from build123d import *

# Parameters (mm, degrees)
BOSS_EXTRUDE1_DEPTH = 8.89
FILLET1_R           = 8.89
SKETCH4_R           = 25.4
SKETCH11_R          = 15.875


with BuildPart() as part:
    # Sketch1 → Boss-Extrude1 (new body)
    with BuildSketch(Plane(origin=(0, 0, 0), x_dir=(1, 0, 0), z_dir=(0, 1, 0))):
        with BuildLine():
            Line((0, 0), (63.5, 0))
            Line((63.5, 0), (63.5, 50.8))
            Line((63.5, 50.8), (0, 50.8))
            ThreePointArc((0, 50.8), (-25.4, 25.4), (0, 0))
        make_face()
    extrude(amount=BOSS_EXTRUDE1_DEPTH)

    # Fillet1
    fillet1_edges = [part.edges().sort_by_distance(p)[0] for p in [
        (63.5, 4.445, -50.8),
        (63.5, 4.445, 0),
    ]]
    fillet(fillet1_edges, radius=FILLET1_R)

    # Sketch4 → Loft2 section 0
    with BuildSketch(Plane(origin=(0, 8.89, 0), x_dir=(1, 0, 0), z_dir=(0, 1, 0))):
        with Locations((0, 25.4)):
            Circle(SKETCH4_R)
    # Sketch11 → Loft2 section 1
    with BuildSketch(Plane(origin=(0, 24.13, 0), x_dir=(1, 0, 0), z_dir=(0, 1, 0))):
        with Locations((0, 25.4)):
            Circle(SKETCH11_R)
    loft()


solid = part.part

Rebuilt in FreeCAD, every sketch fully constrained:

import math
import FreeCAD as App
import Part
import Sketcher

V = App.Vector
Q = App.Units.Quantity


def edges_at(feature, points):
    """Names of the edges that pass closest to the given points."""
    edges = feature.Shape.Edges
    near = lambda p: min(range(len(edges)), key=lambda i: edges[i].distToShape(Part.Vertex(*p))[0])
    return sorted({f"Edge{near(p) + 1}" for p in points})

doc = App.newDocument("Part")
body = doc.addObject("PartDesign::Body", "Body")

# Sketch on XZ plane
sketch1 = doc.addObject("Sketcher::SketchObject", "Sketch")
body.addObject(sketch1)
sketch1.AttachmentSupport = (doc.XZ_Plane, [""])
sketch1.MapMode = "FlatFace"
sketch1.addGeometry([
    Part.LineSegment(V(0, 0, 0), V(64, 0, 0)),
    Part.LineSegment(V(64, 0, 0), V(64, -51, 0)),
    Part.LineSegment(V(64, -51, 0), V(0, -51, 0)),
    Part.ArcOfCircle(Part.Circle(V(0, -25, 0), V(0, 0, 1), 25), math.radians(90), math.radians(270)),
], False)
sketch1.addConstraint([
    Sketcher.Constraint("Coincident", 0, 2, 1, 1),
    Sketcher.Constraint("Coincident", 1, 2, 2, 1),
    Sketcher.Constraint("Tangent", 2, 2, 3, 2),
    Sketcher.Constraint("Tangent", 3, 1, 0, 1),
    Sketcher.Constraint("Horizontal", 0),
    Sketcher.Constraint("Vertical", 1),
    Sketcher.Constraint("Horizontal", 2),
    Sketcher.Constraint("Coincident", 3, 1, -1, 1),
    Sketcher.Constraint("Radius", 3, Q("1 in")),
    Sketcher.Constraint("DistanceX", 0, 1, 0, 2, Q("2.5 in")),
])
pad1 = doc.addObject("PartDesign::Pad", "Pad")
body.addObject(pad1)
pad1.Profile = sketch1
pad1.Length = Q("0.35 in")
pad1.Reversed = True
doc.recompute()

fillet = doc.addObject("PartDesign::Fillet", "Fillet")
body.addObject(fillet)
fillet.Base = (pad1, edges_at(pad1, [(63.5, 4.445, -50.8), (63.5, 4.445, 0)]))
fillet.Radius = Q("0.35 in")

# Sketch on XZ plane
sketch2 = doc.addObject("Sketcher::SketchObject", "Sketch001")
body.addObject(sketch2)
sketch2.AttachmentSupport = (doc.XZ_Plane, [""])
sketch2.MapMode = "FlatFace"
sketch2.AttachmentOffset = App.Placement(V(0, 0, -0.35 * 25.4), App.Rotation())
sketch2.addGeometry(Part.Circle(V(0, -25, 0), V(0, 0, 1), 25), False)
sketch2.addConstraint([
    Sketcher.Constraint("PointOnObject", 0, 3, -2),
    Sketcher.Constraint("Diameter", 0, Q("2 in")),
    Sketcher.Constraint("DistanceY", 0, 3, -1, 1, Q("1 in")),
])

# Sketch on XZ plane
sketch3 = doc.addObject("Sketcher::SketchObject", "Sketch002")
body.addObject(sketch3)
sketch3.AttachmentSupport = (doc.XZ_Plane, [""])
sketch3.MapMode = "FlatFace"
sketch3.AttachmentOffset = App.Placement(V(0, 0, -0.95 * 25.4), App.Rotation())
sketch3.addGeometry(Part.Circle(V(0, -25, 0), V(0, 0, 1), 16), False)
sketch3.addConstraint([
    Sketcher.Constraint("PointOnObject", 0, 3, -2),
    Sketcher.Constraint("Diameter", 0, Q("1.25 in")),
    Sketcher.Constraint("DistanceY", 0, 3, -1, 1, Q("1 in")),
])

additiveloft = doc.addObject("PartDesign::AdditiveLoft", "AdditiveLoft")
body.addObject(additiveloft)
additiveloft.Profile = sketch2
additiveloft.Sections = [sketch3]

doc.recompute()
